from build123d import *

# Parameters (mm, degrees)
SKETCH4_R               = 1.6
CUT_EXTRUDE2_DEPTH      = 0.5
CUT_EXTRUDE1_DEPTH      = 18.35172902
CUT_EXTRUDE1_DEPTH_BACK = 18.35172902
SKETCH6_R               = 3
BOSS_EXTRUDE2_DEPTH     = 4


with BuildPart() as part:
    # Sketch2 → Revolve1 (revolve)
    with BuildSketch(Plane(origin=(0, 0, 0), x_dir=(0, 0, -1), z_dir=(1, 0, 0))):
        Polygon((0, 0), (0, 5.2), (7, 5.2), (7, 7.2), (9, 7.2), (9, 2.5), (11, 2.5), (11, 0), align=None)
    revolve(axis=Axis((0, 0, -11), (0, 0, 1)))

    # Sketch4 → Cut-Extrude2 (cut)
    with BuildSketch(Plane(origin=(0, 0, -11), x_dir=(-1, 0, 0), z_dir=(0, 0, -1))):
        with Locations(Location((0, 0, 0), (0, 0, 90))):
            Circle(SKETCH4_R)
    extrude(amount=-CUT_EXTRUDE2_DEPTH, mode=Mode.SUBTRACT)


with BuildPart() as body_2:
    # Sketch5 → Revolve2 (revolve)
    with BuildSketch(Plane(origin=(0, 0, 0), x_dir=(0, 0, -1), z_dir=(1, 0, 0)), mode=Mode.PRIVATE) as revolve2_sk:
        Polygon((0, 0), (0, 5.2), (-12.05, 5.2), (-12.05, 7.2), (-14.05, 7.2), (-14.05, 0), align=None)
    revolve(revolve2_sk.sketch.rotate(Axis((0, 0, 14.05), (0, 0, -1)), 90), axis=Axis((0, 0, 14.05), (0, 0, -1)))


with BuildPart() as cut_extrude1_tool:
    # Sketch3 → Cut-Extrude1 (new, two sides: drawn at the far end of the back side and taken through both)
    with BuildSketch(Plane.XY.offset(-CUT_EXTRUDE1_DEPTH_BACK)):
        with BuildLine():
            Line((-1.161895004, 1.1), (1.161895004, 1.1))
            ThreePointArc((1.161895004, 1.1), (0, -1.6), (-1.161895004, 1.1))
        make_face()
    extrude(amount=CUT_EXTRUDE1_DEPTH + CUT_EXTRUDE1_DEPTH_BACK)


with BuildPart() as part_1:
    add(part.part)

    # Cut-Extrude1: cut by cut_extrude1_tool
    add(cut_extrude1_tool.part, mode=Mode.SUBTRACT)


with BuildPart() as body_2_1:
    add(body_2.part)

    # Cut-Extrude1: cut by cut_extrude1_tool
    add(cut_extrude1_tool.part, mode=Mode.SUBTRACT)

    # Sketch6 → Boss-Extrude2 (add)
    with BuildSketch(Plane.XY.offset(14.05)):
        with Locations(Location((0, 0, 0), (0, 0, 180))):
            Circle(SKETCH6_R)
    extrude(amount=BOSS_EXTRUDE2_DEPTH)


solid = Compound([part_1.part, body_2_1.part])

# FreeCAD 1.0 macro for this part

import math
import FreeCAD as App
import Part
import Sketcher

V = App.Vector
Q = App.Units.Quantity


def add_polygon(sketch, points):
    """Adds a closed chain of lines whose ends are joined by coincident constraints."""
    first, n = sketch.GeometryCount, len(points)
    for a, b in zip(points, points[1:] + points[:1]):
        sketch.addGeometry(Part.LineSegment(App.Vector(*a, 0), App.Vector(*b, 0)), False)
    for i in range(n):
        sketch.addConstraint(Sketcher.Constraint("Coincident", first + i, 2, first + (i + 1) % n, 1))

doc = App.newDocument("Part")
body = doc.addObject("PartDesign::Body", "Body")

# Sketch on YZ plane
sketch1 = body.newObject("Sketcher::SketchObject", "Sketch")
sketch1.AttachmentSupport = (doc.getObject("YZ_Plane"), [""])
sketch1.MapMode = "FlatFace"
add_polygon(sketch1, [(5.2, 0), (0, 0), (0, -11), (2.5, -11), (2.5, -9), (7.2, -9), (7.2, -7), (5.2, -7)])  # lines 0-7
sketch1.addConstraint([
    Sketcher.Constraint("Horizontal", 0),
    Sketcher.Constraint("Vertical", 1),
    Sketcher.Constraint("Horizontal", 2),
    Sketcher.Constraint("Vertical", 3),
    Sketcher.Constraint("Horizontal", 4),
    Sketcher.Constraint("Vertical", 5),
    Sketcher.Constraint("Horizontal", 6),
    Sketcher.Constraint("Vertical", 7),
    Sketcher.Constraint("Coincident", 0, 2, -1, 1),
    Sketcher.Constraint("Equal", 6, 3),
    Sketcher.Constraint("Equal", 3, 5),
    Sketcher.Constraint("DistanceX", 6, 2, 6, 1, Q("2 mm")),
    Sketcher.Constraint("DistanceY", 1, 2, 1, 1, Q("11 mm")),
    Sketcher.Constraint("DistanceX", 0, 2, 0, 1, Q("5.2 mm")),
    Sketcher.Constraint("DistanceX", 2, 1, 2, 2, Q("2.5 mm")),
])
revolution = body.newObject("PartDesign::Revolution", "Revolution")
revolution.Profile = sketch1
revolution.ReferenceAxis = (sketch1, ["V_Axis"])
revolution.Angle = 360

# Sketch on XY plane
sketch2 = body.newObject("Sketcher::SketchObject", "Sketch001")
sketch2.AttachmentSupport = (doc.getObject("XY_Plane"), [""])
sketch2.MapMode = "FlatFace"
sketch2.AttachmentOffset = App.Placement(V(0, 0, -11), App.Rotation())
sketch2.addGeometry(Part.Circle(V(0, 0, 0), V(0, 0, 1), 1.6), False)
sketch2.addConstraint([
    Sketcher.Constraint("Coincident", 0, 3, -1, 1),
    Sketcher.Constraint("Diameter", 0, Q("3.2 mm")),
])
pocket1 = body.newObject("PartDesign::Pocket", "Pocket")
pocket1.Profile = sketch2
pocket1.Length = 0.5
pocket1.Reversed = True
body2 = doc.addObject("PartDesign::Body", "Body001")

# Sketch on YZ plane
sketch3 = body2.newObject("Sketcher::SketchObject", "Sketch002")
sketch3.AttachmentSupport = (doc.getObject("YZ_Plane001"), [""])
sketch3.MapMode = "FlatFace"
add_polygon(sketch3, [(0, 0), (5.2, 0), (5.2, 12.1), (7.2, 12.1), (7.2, 14.1), (0, 14.1)])  # lines 0-5
sketch3.addConstraint([
    Sketcher.Constraint("Horizontal", 0),
    Sketcher.Constraint("Vertical", 1),
    Sketcher.Constraint("Horizontal", 2),
    Sketcher.Constraint("Vertical", 3),
    Sketcher.Constraint("Horizontal", 4),
    Sketcher.Constraint("Vertical", 5),
    Sketcher.Constraint("Coincident", 5, 2, -1, 1),
    Sketcher.Constraint("Equal", 2, 3),
    Sketcher.Constraint("DistanceX", 2, 1, 2, 2, Q("2 mm")),
    Sketcher.Constraint("DistanceX", 0, 1, 0, 2, Q("5.2 mm")),
    Sketcher.Constraint("DistanceY", 1, 1, 1, 2, Q("12.05 mm")),
])
revolution2 = body2.newObject("PartDesign::Revolution", "Revolution001")
revolution2.Profile = sketch3
revolution2.ReferenceAxis = (sketch3, ["V_Axis"])
revolution2.Angle = 360
body3 = doc.addObject("PartDesign::Body", "Body002")

# Sketch on XY plane
sketch4 = body3.newObject("Sketcher::SketchObject", "Sketch003")
sketch4.AttachmentSupport = (doc.getObject("XY_Plane002"), [""])
sketch4.MapMode = "FlatFace"
sketch4.addGeometry([
    Part.LineSegment(V(1.2, 1.1, 0), V(-1.2, 1.1, 0)),
    Part.ArcOfCircle(Part.Circle(V(0, 0, 0), V(0, 0, 1), 1.6), math.radians(137), math.radians(403)),
], False)
sketch4.addConstraint([
    Sketcher.Constraint("Coincident", 0, 1, 1, 2),
    Sketcher.Constraint("Coincident", 1, 1, 0, 2),
    Sketcher.Constraint("Horizontal", 0),
    Sketcher.Constraint("Coincident", 1, 3, -1, 1),
    Sketcher.Constraint("Radius", 1, Q("1.6 mm")),
    Sketcher.Constraint("DistanceY", -1, 1, 0, 1, Q("1.1 mm")),
])
pad1 = body3.newObject("PartDesign::Pad", "Pad")
pad1.Profile = sketch4
pad1.Type = "TwoLengths"
pad1.Length = 18.351729
pad1.Length2 = 18.351729
doc.recompute()

body4 = doc.addObject("PartDesign::Body", "Body003")
body4.BaseFeature = body3
boolean = body.newObject("PartDesign::Boolean", "Boolean")
boolean.Type = "Cut"
boolean.addObjects([body4])
doc.recompute()

boolean2 = body2.newObject("PartDesign::Boolean", "Boolean001")
boolean2.Type = "Cut"
boolean2.addObjects([body3])

# Sketch on XY plane
sketch5 = body2.newObject("Sketcher::SketchObject", "Sketch004")
sketch5.AttachmentSupport = (doc.getObject("XY_Plane001"), [""])
sketch5.MapMode = "FlatFace"
sketch5.AttachmentOffset = App.Placement(V(0, 0, 14.05), App.Rotation())
sketch5.addGeometry(Part.Circle(V(0, 0, 0), V(0, 0, 1), 3), False)
sketch5.addConstraint([
    Sketcher.Constraint("Coincident", 0, 3, -1, 1),
    Sketcher.Constraint("Diameter", 0, Q("6 mm")),
])
pad2 = body2.newObject("PartDesign::Pad", "Pad001")
pad2.Profile = sketch5
pad2.Length = 4

doc.recompute()
